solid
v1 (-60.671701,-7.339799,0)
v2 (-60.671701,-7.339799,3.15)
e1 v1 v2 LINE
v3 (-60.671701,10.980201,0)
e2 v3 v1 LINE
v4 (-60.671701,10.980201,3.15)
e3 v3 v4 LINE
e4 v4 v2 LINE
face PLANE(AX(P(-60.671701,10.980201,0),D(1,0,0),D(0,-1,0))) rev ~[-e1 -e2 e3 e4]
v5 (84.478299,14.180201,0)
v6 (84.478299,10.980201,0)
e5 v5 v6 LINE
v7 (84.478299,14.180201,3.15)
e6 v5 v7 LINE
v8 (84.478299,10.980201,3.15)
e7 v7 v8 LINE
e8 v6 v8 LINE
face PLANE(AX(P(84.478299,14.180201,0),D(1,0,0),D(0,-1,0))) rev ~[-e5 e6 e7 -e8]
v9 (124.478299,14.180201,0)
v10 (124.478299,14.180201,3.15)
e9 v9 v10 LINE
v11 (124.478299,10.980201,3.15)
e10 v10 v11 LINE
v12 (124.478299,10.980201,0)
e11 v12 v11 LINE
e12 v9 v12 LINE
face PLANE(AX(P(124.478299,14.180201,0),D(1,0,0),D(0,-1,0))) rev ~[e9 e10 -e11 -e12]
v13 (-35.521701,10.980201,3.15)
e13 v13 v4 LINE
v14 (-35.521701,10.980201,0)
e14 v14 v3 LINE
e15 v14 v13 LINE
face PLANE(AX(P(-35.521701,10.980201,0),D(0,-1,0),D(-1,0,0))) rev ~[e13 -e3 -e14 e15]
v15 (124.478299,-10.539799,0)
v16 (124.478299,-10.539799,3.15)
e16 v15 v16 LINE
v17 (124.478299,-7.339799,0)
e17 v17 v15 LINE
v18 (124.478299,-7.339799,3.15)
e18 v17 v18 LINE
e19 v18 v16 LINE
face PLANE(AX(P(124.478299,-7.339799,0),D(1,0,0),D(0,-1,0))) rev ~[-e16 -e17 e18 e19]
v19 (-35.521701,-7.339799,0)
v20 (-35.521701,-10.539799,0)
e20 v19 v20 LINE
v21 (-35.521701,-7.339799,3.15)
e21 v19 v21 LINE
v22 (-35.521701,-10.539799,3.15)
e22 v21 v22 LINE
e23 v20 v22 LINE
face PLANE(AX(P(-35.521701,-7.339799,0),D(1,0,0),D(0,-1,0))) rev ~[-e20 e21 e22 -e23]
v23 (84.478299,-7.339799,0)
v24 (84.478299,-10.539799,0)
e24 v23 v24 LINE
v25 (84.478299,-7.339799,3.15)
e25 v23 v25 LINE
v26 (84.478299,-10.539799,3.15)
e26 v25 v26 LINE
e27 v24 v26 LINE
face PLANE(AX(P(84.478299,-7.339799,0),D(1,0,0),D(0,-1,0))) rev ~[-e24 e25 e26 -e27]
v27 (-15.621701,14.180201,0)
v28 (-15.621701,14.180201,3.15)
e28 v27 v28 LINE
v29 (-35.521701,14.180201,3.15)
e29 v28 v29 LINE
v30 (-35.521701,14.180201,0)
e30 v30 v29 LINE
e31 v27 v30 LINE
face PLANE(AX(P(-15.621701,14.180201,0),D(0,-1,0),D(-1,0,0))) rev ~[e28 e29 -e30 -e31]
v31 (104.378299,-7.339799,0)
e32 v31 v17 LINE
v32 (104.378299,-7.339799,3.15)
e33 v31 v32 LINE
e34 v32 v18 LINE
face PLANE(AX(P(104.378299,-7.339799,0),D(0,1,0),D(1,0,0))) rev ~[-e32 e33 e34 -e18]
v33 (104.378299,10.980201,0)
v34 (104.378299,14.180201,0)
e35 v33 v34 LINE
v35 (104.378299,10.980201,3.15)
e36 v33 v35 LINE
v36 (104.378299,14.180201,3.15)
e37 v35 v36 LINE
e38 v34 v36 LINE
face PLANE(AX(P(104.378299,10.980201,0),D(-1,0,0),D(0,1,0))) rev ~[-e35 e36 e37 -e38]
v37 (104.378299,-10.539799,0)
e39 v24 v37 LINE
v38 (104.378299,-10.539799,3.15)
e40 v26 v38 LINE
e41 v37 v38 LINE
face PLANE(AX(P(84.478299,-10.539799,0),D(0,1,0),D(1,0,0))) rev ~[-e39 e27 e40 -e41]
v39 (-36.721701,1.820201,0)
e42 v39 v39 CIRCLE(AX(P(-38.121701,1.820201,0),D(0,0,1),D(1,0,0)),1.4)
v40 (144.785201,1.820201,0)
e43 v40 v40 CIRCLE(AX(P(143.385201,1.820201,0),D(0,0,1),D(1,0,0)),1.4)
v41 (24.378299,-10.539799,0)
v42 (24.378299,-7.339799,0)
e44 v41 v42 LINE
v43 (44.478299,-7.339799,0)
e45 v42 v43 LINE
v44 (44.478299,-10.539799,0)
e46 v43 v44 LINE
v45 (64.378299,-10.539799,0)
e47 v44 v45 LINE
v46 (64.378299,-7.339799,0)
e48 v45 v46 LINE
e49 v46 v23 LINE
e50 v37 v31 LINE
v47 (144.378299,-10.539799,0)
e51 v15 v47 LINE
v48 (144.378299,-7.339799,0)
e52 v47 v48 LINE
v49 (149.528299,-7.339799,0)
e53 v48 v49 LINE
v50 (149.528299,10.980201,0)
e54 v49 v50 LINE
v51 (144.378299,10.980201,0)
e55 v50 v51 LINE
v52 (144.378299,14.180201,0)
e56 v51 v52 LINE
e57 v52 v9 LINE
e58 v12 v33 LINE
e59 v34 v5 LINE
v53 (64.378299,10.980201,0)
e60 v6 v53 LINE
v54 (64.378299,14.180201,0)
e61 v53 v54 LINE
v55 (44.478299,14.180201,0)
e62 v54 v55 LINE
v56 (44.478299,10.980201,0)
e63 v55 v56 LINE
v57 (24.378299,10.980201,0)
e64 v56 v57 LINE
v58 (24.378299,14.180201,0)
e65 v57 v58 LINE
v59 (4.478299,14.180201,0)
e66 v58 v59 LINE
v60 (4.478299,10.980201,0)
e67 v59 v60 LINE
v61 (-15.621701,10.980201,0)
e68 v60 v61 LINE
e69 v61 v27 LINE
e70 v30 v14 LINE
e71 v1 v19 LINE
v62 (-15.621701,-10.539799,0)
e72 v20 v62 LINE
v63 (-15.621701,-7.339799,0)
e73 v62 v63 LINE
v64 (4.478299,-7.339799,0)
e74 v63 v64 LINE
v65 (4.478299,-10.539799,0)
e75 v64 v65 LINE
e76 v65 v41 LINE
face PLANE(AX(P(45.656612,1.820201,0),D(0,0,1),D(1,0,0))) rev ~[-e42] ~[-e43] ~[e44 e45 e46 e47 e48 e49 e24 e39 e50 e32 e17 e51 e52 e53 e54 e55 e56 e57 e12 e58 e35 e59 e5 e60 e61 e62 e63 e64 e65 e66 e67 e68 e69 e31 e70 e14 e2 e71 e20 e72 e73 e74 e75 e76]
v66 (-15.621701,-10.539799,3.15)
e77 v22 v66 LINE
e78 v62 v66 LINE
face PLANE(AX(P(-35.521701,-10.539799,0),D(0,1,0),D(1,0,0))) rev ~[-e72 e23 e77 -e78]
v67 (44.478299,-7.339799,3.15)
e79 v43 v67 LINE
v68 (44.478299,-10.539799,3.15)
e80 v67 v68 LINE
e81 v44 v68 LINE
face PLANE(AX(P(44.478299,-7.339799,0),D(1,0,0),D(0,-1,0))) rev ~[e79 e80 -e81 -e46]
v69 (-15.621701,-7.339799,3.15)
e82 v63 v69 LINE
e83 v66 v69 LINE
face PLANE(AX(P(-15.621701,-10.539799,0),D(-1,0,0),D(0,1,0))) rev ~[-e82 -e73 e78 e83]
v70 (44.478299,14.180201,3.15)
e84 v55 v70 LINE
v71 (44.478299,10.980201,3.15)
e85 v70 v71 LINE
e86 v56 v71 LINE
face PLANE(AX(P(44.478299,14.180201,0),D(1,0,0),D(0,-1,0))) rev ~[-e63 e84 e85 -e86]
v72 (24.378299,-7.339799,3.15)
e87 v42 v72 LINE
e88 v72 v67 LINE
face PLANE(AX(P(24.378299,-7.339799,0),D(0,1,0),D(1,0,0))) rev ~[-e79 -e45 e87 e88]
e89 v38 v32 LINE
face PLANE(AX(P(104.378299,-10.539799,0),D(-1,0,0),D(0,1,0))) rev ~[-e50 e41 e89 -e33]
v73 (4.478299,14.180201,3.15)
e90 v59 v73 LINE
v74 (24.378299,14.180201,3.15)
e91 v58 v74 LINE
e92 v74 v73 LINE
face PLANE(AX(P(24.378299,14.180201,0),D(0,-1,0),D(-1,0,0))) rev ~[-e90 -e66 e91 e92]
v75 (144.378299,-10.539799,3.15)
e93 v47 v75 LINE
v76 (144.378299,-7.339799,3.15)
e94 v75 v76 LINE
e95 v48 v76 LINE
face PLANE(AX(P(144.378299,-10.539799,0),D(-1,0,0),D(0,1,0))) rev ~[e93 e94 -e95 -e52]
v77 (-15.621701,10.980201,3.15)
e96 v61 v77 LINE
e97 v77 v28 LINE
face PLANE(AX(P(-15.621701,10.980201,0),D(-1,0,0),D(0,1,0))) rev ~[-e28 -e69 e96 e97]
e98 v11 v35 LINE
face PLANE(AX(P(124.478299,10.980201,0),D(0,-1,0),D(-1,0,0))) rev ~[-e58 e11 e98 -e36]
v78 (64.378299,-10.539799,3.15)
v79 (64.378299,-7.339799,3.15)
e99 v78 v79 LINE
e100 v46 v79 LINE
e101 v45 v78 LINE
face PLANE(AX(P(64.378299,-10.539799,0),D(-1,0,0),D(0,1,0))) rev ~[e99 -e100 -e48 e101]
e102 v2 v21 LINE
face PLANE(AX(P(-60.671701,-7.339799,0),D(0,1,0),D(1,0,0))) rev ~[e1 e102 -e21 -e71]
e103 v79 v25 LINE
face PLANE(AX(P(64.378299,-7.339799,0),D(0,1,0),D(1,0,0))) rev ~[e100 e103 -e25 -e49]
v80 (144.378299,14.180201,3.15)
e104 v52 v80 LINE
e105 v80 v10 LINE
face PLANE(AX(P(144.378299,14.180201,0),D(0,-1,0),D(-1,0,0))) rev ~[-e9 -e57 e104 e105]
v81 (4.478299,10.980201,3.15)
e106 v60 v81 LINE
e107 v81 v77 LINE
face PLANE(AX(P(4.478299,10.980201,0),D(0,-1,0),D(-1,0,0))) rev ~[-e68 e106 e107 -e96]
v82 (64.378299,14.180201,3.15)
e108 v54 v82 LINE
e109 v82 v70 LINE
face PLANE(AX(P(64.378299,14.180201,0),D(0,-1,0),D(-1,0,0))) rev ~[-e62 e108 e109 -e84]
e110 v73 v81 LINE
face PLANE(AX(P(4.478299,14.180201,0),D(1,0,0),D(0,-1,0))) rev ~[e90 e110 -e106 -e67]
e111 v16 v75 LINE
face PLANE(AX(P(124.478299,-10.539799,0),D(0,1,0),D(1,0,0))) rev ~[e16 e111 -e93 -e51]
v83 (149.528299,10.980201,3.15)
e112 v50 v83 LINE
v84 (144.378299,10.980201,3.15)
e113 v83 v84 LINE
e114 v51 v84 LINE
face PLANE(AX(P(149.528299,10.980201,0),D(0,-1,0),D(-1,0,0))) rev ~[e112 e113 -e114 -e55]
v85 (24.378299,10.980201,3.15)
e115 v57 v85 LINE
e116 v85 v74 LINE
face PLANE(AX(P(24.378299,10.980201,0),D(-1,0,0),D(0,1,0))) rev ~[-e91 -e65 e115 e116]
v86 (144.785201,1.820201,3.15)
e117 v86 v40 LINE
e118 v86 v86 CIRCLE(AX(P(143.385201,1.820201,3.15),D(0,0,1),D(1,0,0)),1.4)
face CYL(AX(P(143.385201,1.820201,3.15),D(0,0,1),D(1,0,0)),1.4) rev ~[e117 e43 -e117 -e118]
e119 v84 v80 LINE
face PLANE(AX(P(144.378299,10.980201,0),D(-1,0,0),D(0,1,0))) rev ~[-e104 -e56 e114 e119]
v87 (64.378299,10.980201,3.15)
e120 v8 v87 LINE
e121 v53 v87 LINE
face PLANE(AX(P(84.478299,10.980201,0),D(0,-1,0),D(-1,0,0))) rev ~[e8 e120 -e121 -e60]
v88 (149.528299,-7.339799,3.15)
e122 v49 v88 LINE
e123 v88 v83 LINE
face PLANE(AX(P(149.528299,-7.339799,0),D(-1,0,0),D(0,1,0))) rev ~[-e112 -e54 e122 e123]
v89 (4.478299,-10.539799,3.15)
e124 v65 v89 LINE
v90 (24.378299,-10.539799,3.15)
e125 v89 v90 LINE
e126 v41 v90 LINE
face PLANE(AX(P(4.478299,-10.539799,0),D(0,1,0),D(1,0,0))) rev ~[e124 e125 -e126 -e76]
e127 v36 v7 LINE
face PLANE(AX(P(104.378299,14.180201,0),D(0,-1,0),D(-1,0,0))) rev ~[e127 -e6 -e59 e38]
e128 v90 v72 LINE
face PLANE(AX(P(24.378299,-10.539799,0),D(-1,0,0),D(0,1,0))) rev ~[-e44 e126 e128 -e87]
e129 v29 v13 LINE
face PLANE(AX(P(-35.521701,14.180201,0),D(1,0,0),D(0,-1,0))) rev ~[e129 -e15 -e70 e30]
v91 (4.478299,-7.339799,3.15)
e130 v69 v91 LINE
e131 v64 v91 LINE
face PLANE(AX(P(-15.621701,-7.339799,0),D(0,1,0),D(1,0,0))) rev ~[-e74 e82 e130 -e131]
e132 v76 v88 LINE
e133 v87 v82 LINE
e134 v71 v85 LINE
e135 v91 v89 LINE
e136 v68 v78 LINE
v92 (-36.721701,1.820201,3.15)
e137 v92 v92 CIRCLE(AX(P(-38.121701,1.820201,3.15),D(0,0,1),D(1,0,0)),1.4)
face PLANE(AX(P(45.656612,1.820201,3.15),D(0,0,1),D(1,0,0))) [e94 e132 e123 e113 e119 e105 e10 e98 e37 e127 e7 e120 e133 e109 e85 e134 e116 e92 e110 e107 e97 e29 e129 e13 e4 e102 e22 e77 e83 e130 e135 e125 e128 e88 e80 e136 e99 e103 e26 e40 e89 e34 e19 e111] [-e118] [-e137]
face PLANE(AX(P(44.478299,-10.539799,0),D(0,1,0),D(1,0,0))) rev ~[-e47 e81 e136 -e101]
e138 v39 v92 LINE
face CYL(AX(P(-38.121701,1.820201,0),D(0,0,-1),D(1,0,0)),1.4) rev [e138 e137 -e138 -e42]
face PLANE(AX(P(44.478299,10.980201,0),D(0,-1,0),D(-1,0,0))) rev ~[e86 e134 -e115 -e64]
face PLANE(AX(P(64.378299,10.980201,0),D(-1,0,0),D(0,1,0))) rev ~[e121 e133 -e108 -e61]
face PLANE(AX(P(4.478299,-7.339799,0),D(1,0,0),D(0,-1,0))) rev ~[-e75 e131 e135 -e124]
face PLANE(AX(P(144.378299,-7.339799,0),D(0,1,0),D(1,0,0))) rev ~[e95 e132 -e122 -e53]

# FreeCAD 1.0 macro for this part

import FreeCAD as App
import Part
import Sketcher
from FreeCAD import Vector
Q = App.Units.Quantity


def add_polygon(sketch, points):
    """Adds a closed chain of lines whose ends are joined by coincident constraints."""
    first, n = sketch.GeometryCount, len(points)
    for a, b in zip(points, points[1:] + points[:1]):
        sketch.addGeometry(Part.LineSegment(App.Vector(*a, 0), App.Vector(*b, 0)), False)
    for i in range(n):
        sketch.addConstraint(Sketcher.Constraint("Coincident", first + i, 2, first + (i + 1) % n, 1))

doc = App.newDocument("Part")
body = doc.addObject("PartDesign::Body", "Body")

# Sketch on XY plane
sketch1 = body.newObject("Sketcher::SketchObject", "Sketch")
sketch1.AttachmentSupport = (doc.getObject("XY_Plane"), [""])
sketch1.MapMode = "FlatFace"
add_polygon(sketch1, [(-60.671701, 10.980201), (-60.671701, -7.339799), (-35.521701, -7.339799), (-35.521701, -10.539799), (-15.621701, -10.539799), (-15.621701, -7.339799), (4.478299, -7.339799), (4.478299, -10.539799), (24.378299, -10.539799), (24.378299, -7.339799), (44.478299, -7.339799), (44.478299, -10.539799), (64.378299, -10.539799), (64.378299, -7.339799), (84.478299, -7.339799), (84.478299, -10.539799), (104.378299, -10.539799), (104.378299, -7.339799), (124.478299, -7.339799), (124.478299, -10.539799), (144.378299, -10.539799), (144.378299, -7.339799), (149.528299, -7.339799), (149.528299, 10.980201), (144.378299, 10.980201), (144.378299, 14.180201), (124.478299, 14.180201), (124.478299, 10.980201), (104.378299, 10.980201), (104.378299, 14.180201), (84.478299, 14.180201), (84.478299, 10.980201), (64.378299, 10.980201), (64.378299, 14.180201), (44.478299, 14.180201), (44.478299, 10.980201), (24.378299, 10.980201), (24.378299, 14.180201), (4.478299, 14.180201), (4.478299, 10.980201), (-15.621701, 10.980201), (-15.621701, 14.180201), (-35.521701, 14.180201), (-35.521701, 10.980201)])  # lines 0-43
sketch1.addGeometry(Part.Circle(Vector(-38.121701, 1.820201, 0), Vector(0, 0, 1), 1.4), False)  # 44
sketch1.addConstraint([
    Sketcher.Constraint("Vertical", 0),
    Sketcher.Constraint("Horizontal", 1),
    Sketcher.Constraint("Vertical", 2),
    Sketcher.Constraint("Horizontal", 3),
    Sketcher.Constraint("Vertical", 4),
    Sketcher.Constraint("Horizontal", 5),
    Sketcher.Constraint("Vertical", 6),
    Sketcher.Constraint("Horizontal", 7),
    Sketcher.Constraint("Vertical", 8),
    Sketcher.Constraint("Horizontal", 9),
    Sketcher.Constraint("Vertical", 10),
    Sketcher.Constraint("Horizontal", 11),
    Sketcher.Constraint("Vertical", 12),
    Sketcher.Constraint("Horizontal", 13),
    Sketcher.Constraint("Vertical", 14),
    Sketcher.Constraint("Horizontal", 15),
    Sketcher.Constraint("Vertical", 16),
    Sketcher.Constraint("Horizontal", 17),
    Sketcher.Constraint("Vertical", 18),
    Sketcher.Constraint("Horizontal", 19),
    Sketcher.Constraint("Vertical", 20),
    Sketcher.Constraint("Horizontal", 21),
    Sketcher.Constraint("Vertical", 22),
    Sketcher.Constraint("Horizontal", 23),
    Sketcher.Constraint("Vertical", 24),
    Sketcher.Constraint("Horizontal", 25),
    Sketcher.Constraint("Vertical", 26),
    Sketcher.Constraint("Horizontal", 27),
    Sketcher.Constraint("Vertical", 28),
    Sketcher.Constraint("Horizontal", 29),
    Sketcher.Constraint("Vertical", 30),
    Sketcher.Constraint("Horizontal", 31),
    Sketcher.Constraint("Vertical", 32),
    Sketcher.Constraint("Horizontal", 33),
    Sketcher.Constraint("Vertical", 34),
    Sketcher.Constraint("Horizontal", 35),
    Sketcher.Constraint("Vertical", 36),
    Sketcher.Constraint("Horizontal", 37),
    Sketcher.Constraint("Vertical", 38),
    Sketcher.Constraint("Horizontal", 39),
    Sketcher.Constraint("Vertical", 40),
    Sketcher.Constraint("Horizontal", 41),
    Sketcher.Constraint("Vertical", 42),
    Sketcher.Constraint("Horizontal", 43),
    Sketcher.Constraint("Horizontal", 1, 2, 4, 2),
    Sketcher.Constraint("Horizontal", 3, 2, 6, 2),
    Sketcher.Constraint("Horizontal", 5, 2, 8, 2),
    Sketcher.Constraint("Horizontal", 7, 2, 10, 2),
    Sketcher.Constraint("Horizontal", 9, 2, 12, 2),
    Sketcher.Constraint("Horizontal", 11, 2, 14, 2),
    Sketcher.Constraint("Horizontal", 13, 2, 16, 2),
    Sketcher.Constraint("Horizontal", 15, 2, 18, 2),
    Sketcher.Constraint("Horizontal", 17, 2, 20, 2),
    Sketcher.Constraint("Horizontal", 23, 2, 26, 2),
    Sketcher.Constraint("Horizontal", 25, 2, 28, 2),
    Sketcher.Constraint("Horizontal", 27, 2, 30, 2),
    Sketcher.Constraint("Horizontal", 29, 2, 32, 2),
    Sketcher.Constraint("Horizontal", 31, 2, 34, 2),
    Sketcher.Constraint("Horizontal", 33, 2, 36, 2),
    Sketcher.Constraint("Horizontal", 35, 2, 38, 2),
    Sketcher.Constraint("Horizontal", 37, 2, 40, 2),
    Sketcher.Constraint("Horizontal", 39, 2, 42, 2),
    Sketcher.Constraint("Vertical", 20, 2, 23, 2),
    Sketcher.Constraint("Vertical", 18, 2, 25, 2),
    Sketcher.Constraint("Vertical", 16, 2, 27, 2),
    Sketcher.Constraint("Vertical", 14, 2, 29, 2),
    Sketcher.Constraint("Vertical", 12, 2, 31, 2),
    Sketcher.Constraint("Vertical", 10, 2, 33, 2),
    Sketcher.Constraint("Vertical", 8, 2, 35, 2),
    Sketcher.Constraint("Vertical", 6, 2, 37, 2),
    Sketcher.Constraint("Vertical", 4, 2, 39, 2),
    Sketcher.Constraint("Vertical", 2, 2, 41, 2),
    Sketcher.Constraint("Equal", 3, 7),
    Sketcher.Constraint("Equal", 5, 9),
    Sketcher.Constraint("Equal", 7, 11),
    Sketcher.Constraint("Equal", 9, 13),
    Sketcher.Constraint("Equal", 11, 15),
    Sketcher.Constraint("Equal", 13, 17),
    Sketcher.Constraint("Equal", 15, 19),
    Sketcher.Constraint("Equal", 20, 24),
    Sketcher.Constraint("Diameter", 44, Q("2.8 mm")),
    Sketcher.Constraint("DistanceX", 3, 1, 3, 2, Q("19.9 mm")),
    Sketcher.Constraint("DistanceX", 5, 1, 5, 2, Q("20.1 mm")),
    Sketcher.Constraint("DistanceY", 2, 2, 2, 1, Q("3.2 mm")),
    Sketcher.Constraint("DistanceX", 1, 1, 1, 2, Q("25.15 mm")),
    Sketcher.Constraint("DistanceX", 21, 1, 21, 2, Q("5.15 mm")),
    Sketcher.Constraint("DistanceY", 0, 2, 0, 1, Q("18.32 mm")),
    Sketcher.Constraint("DistanceX", 44, 3, 1, 2, Q("2.6 mm")),
    Sketcher.Constraint("DistanceY", 0, 2, 44, 3, Q("9.16 mm")),
    Sketcher.Constraint("DistanceX", 44, 3, -1, 1, Q("38.121701 mm")),
    Sketcher.Constraint("DistanceY", -1, 1, 44, 3, Q("1.820201 mm")),
])
pad1 = body.newObject("PartDesign::Pad", "Pad")
pad1.Profile = sketch1
pad1.Length = 3.15

# Sketch on XY plane
sketch2 = body.newObject("Sketcher::SketchObject", "Sketch001")
sketch2.AttachmentSupport = (doc.getObject("XY_Plane"), [""])
sketch2.MapMode = "FlatFace"
sketch2.AttachmentOffset = App.Placement(Vector(0, 0, 3.15), App.Rotation())
sketch2.addGeometry(Part.Circle(Vector(143.385201, 1.820201, 0), Vector(0, 0, 1), 1.4), False)
sketch2.addConstraint([
    Sketcher.Constraint("Diameter", 0, Q("2.8 mm")),
    Sketcher.Constraint("DistanceX", -1, 1, 0, 3, Q("143.385201 mm")),
    Sketcher.Constraint("DistanceY", -1, 1, 0, 3, Q("1.820201 mm")),
])
pocket1 = body.newObject("PartDesign::Pocket", "Pocket")
pocket1.Profile = sketch2
pocket1.Length = 10

doc.recompute()
